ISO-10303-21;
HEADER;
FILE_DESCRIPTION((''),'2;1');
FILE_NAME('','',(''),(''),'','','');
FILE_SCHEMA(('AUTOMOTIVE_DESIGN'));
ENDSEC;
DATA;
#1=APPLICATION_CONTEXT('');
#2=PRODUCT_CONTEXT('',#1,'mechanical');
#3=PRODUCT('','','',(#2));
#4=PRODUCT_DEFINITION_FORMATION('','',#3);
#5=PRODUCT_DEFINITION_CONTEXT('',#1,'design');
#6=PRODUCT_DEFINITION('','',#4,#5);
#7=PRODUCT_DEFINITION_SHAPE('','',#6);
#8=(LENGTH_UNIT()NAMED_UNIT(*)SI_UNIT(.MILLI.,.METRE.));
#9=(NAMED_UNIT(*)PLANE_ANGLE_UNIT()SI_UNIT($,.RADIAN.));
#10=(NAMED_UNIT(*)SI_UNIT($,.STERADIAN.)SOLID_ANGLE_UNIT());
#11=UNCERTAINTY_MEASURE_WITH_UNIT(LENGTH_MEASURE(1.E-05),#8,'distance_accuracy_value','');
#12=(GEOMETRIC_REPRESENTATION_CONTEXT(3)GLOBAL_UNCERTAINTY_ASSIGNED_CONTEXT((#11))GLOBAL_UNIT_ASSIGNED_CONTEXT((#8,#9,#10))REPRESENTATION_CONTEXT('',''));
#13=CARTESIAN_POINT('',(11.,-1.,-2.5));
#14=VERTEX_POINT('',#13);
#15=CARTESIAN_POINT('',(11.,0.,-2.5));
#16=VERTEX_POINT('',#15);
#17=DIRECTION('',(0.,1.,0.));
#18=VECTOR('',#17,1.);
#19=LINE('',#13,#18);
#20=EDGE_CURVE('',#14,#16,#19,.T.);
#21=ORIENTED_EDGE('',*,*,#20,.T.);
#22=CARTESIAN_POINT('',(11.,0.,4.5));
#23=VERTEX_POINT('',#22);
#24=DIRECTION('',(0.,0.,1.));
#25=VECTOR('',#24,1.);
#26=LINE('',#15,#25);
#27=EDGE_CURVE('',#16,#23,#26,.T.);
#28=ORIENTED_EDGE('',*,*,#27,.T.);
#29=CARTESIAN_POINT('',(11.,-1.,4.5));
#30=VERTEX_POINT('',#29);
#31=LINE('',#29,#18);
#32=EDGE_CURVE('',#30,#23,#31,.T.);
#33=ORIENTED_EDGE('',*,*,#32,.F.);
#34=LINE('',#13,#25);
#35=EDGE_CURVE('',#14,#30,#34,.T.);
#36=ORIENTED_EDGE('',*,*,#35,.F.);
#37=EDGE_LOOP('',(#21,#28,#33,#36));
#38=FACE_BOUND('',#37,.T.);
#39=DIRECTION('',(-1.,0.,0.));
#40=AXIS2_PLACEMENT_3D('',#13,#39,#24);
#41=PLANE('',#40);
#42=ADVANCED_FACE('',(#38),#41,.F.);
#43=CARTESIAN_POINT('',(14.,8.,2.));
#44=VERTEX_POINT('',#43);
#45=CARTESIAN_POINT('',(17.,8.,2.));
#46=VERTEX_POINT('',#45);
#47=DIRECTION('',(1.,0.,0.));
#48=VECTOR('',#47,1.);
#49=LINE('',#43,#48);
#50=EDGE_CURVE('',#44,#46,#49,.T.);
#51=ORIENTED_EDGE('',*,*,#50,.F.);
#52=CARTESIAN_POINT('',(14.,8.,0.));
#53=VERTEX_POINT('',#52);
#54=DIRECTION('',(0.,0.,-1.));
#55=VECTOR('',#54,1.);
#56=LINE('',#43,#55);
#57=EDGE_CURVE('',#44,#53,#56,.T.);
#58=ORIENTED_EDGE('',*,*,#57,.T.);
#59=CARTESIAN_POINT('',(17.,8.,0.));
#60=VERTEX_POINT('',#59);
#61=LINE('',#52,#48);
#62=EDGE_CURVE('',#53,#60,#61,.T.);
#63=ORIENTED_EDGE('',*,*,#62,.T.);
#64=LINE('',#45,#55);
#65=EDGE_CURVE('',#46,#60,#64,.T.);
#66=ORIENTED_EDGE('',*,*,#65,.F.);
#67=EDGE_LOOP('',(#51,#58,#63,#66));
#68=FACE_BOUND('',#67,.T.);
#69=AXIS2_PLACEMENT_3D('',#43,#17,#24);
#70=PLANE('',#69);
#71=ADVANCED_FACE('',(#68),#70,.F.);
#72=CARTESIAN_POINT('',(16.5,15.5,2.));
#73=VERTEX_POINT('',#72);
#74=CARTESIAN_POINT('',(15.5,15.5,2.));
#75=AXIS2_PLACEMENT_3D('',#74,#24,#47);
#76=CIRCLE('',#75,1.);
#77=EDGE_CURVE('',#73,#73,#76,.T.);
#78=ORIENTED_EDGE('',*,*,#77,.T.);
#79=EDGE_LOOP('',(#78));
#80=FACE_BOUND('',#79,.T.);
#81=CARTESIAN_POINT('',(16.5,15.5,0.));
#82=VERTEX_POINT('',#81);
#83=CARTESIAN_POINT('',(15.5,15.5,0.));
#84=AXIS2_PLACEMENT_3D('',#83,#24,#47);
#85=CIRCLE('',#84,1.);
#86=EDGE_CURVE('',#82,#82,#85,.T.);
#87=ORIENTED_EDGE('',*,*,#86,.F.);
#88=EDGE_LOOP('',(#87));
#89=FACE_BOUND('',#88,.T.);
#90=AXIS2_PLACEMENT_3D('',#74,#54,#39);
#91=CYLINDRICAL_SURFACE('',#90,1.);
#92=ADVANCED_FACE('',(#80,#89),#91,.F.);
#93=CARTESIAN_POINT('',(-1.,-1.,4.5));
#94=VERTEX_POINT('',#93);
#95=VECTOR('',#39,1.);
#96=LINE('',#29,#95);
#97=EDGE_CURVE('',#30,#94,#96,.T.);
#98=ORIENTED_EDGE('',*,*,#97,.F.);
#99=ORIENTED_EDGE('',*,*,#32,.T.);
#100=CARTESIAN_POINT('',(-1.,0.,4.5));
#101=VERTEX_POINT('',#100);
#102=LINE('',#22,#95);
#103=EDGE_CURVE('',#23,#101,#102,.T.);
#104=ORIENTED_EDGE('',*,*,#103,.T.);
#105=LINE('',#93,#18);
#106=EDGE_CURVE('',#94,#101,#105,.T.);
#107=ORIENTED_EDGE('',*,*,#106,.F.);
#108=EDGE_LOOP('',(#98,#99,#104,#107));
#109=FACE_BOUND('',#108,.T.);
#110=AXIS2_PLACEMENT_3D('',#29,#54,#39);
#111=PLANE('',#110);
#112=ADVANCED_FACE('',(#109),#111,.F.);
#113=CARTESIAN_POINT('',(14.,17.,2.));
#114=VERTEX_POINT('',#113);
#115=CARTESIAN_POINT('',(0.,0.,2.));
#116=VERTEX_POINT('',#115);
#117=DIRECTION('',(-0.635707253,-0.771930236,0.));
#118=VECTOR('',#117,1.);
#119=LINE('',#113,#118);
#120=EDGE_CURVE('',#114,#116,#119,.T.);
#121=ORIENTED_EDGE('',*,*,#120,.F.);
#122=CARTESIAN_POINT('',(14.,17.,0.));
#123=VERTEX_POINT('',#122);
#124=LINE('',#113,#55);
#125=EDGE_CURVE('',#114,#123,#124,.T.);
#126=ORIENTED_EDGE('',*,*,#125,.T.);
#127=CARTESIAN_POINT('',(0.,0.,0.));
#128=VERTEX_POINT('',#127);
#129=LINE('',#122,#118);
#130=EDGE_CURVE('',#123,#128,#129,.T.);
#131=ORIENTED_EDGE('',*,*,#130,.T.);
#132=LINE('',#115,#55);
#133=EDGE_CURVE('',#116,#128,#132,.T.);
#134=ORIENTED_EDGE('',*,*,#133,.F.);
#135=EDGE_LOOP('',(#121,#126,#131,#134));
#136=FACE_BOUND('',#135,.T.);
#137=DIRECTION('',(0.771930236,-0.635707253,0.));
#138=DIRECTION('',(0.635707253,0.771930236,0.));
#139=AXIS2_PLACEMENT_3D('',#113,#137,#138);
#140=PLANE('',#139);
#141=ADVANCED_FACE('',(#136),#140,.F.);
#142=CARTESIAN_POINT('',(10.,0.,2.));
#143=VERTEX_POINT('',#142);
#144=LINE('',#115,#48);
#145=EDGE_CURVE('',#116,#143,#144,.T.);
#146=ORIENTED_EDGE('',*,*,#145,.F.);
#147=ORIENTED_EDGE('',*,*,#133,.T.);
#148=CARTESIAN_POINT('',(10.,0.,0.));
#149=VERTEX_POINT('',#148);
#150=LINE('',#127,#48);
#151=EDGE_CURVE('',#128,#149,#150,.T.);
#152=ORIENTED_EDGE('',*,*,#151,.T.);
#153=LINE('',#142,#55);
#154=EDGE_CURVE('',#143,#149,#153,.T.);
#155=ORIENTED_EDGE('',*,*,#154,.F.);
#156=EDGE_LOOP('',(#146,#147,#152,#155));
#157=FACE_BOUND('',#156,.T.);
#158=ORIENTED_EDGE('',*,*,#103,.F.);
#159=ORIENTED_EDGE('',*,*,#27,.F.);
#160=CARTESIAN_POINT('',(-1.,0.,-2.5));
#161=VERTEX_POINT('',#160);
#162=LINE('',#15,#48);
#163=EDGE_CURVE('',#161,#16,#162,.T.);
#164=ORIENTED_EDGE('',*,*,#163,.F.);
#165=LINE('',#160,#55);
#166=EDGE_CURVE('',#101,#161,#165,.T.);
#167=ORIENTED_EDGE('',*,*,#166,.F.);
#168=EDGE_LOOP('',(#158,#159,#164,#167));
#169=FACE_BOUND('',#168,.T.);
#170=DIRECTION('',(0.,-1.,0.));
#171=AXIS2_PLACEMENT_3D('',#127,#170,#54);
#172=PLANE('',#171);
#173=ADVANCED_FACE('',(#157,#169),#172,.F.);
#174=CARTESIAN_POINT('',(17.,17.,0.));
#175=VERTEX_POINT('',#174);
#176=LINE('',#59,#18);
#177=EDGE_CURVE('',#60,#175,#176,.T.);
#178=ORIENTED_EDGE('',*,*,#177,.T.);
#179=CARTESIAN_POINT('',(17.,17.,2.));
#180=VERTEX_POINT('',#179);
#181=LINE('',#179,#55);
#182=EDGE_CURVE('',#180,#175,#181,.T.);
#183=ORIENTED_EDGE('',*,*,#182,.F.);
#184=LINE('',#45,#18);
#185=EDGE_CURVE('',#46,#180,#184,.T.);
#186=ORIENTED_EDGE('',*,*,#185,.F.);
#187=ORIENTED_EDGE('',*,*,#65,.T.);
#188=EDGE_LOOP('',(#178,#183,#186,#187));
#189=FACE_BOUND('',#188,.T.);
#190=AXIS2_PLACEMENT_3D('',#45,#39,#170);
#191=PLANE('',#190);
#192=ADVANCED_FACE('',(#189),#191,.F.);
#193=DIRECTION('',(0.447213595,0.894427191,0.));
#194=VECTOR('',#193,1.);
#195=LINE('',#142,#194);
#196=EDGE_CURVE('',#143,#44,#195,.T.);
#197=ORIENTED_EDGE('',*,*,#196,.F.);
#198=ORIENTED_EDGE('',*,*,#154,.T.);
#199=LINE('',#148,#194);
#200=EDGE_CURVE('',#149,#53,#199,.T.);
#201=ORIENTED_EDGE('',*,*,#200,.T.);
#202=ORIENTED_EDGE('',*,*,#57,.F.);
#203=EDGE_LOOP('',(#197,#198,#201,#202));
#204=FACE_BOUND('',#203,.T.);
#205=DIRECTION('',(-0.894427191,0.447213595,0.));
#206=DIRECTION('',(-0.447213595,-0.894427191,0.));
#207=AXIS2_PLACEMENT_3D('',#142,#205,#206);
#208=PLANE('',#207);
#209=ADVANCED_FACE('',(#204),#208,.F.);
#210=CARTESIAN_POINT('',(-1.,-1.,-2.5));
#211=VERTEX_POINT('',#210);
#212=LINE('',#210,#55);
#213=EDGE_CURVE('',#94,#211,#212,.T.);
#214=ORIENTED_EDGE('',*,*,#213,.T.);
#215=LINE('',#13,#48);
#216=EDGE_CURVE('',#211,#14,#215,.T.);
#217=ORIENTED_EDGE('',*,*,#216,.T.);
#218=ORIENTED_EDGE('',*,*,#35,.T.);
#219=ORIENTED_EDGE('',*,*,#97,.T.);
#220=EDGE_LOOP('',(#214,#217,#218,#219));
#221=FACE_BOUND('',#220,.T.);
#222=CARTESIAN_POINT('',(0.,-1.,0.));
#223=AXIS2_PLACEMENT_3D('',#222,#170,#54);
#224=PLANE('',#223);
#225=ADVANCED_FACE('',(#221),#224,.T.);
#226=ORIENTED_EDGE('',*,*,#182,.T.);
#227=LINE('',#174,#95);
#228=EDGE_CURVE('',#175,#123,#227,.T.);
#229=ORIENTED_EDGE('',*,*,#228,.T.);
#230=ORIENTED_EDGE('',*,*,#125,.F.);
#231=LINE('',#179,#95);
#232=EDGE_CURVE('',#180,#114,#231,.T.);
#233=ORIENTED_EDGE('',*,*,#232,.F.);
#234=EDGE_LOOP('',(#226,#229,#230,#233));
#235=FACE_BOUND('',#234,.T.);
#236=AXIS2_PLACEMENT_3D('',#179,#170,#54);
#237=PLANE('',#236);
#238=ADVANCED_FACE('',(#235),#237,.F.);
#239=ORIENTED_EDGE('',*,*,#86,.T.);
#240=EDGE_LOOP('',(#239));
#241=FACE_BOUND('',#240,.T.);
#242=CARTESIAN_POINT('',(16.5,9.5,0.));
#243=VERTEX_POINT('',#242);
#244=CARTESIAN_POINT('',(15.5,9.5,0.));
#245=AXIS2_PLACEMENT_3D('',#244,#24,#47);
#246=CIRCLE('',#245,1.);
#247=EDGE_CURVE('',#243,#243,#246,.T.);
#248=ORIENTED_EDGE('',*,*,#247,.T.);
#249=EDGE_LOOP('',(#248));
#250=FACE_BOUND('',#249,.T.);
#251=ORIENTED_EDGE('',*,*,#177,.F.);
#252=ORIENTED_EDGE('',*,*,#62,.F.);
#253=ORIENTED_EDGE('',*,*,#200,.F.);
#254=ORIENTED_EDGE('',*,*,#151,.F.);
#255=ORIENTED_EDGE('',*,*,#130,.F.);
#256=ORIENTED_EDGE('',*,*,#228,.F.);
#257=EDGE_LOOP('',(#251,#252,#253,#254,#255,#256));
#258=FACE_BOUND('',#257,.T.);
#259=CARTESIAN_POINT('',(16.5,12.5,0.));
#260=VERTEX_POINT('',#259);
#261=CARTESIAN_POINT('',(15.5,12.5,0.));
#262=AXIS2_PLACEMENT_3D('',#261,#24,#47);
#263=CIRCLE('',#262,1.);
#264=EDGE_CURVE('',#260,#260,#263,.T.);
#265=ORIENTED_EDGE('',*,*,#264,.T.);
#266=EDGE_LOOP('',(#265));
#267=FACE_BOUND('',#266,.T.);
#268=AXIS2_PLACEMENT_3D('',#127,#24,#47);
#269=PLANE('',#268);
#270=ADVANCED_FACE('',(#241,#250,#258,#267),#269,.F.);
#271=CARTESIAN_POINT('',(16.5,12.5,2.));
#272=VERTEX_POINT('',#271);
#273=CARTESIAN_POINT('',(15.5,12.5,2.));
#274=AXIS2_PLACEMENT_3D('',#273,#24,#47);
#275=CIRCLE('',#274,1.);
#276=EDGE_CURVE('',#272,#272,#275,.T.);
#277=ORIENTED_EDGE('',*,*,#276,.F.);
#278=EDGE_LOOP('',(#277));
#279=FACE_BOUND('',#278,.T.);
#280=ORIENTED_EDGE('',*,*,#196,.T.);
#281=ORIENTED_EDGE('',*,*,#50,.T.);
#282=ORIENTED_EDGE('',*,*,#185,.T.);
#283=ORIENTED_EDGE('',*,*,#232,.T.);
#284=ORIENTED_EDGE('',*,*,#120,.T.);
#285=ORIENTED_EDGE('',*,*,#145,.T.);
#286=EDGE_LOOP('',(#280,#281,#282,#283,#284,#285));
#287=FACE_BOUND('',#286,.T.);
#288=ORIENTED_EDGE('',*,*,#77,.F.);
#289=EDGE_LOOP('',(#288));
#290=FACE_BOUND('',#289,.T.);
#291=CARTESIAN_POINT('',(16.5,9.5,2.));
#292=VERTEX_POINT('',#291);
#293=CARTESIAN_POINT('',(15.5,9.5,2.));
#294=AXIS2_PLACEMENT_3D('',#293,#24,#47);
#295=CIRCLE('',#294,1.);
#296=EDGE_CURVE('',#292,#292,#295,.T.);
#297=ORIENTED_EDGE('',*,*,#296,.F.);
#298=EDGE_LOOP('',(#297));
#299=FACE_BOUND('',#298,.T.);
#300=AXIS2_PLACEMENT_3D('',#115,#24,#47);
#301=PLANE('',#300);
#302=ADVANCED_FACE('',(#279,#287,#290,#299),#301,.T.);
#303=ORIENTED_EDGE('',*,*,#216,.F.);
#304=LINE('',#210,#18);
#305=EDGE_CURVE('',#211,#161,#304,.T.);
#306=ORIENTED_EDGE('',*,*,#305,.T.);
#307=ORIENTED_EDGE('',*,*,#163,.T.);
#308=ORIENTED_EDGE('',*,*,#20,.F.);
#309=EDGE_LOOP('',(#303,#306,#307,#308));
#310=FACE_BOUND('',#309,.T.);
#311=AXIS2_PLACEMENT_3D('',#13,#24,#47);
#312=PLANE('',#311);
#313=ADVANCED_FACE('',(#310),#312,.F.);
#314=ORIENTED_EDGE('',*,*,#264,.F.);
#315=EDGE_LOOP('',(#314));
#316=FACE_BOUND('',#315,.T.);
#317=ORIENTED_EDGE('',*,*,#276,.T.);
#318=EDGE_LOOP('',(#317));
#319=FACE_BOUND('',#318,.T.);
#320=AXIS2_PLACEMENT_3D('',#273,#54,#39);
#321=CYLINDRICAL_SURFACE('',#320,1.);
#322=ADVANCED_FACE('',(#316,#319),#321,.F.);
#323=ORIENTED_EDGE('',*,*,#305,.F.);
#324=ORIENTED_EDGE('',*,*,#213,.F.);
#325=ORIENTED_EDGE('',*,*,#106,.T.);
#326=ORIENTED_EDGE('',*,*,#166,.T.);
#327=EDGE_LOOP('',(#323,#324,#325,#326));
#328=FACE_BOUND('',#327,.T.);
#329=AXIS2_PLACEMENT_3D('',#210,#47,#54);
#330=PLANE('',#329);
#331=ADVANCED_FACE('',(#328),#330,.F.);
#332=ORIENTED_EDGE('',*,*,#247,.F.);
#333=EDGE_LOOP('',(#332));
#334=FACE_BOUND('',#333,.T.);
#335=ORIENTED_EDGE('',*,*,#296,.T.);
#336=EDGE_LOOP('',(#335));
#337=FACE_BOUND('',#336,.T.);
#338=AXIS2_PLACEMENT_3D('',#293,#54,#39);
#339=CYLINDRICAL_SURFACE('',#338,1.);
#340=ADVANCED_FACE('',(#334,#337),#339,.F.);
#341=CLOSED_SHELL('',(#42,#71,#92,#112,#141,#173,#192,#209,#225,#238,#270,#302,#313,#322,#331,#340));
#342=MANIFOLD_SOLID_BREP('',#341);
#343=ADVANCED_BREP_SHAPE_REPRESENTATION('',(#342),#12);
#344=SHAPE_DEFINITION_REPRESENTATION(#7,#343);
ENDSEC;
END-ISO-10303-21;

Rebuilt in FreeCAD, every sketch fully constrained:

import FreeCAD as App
import Part
import Sketcher
Q = App.Units.Quantity


def add_polygon(sketch, points):
    """Adds a closed chain of lines whose ends are joined by coincident constraints."""
    first, n = sketch.GeometryCount, len(points)
    for a, b in zip(points, points[1:] + points[:1]):
        sketch.addGeometry(Part.LineSegment(App.Vector(*a, 0), App.Vector(*b, 0)), False)
    for i in range(n):
        sketch.addConstraint(Sketcher.Constraint("Coincident", first + i, 2, first + (i + 1) % n, 1))

doc = App.newDocument("Part")
params = doc.addObject("Spreadsheet::Sheet", "Params")
for row, (alias, value) in enumerate([
    ("sketch1_diameter", "2 mm"),
    ("sketch1_width", "10 mm"),
    ("sketch1_width2", "3 mm"),
    ("sketch1_height", "9 mm"),
    ("pad1_length", "2 mm"),
    ("sketch2_width", "12 mm"),
    ("sketch2_height", "7 mm"),
    ("pad2_length", "1 mm"),
], start=1):
    params.set(f"A{row}", alias)
    params.set(f"B{row}", "=" + value)
    params.setAlias(f"B{row}", alias)

body = doc.addObject("PartDesign::Body", "Body")

# Sketch on XY plane
sketch1 = body.newObject("Sketcher::SketchObject", "Sketch")
sketch1.AttachmentSupport = (doc.getObject("XY_Plane"), [""])
sketch1.MapMode = "FlatFace"
add_polygon(sketch1, [(0, 0), (10, 0), (14, 8), (17, 8), (17, 17), (14, 17)])  # lines 0-5
sketch1.addGeometry(Part.Circle(App.Vector(15.5, 9.5, 0), App.Vector(0, 0, 1), 1), False)  # 6
sketch1.addGeometry(Part.Circle(App.Vector(15.5, 12.5, 0), App.Vector(0, 0, 1), 1), False)  # 7
sketch1.addGeometry(Part.Circle(App.Vector(15.5, 15.5, 0), App.Vector(0, 0, 1), 1), False)  # 8
sketch1.addConstraint([
    Sketcher.Constraint("Horizontal", 0),
    Sketcher.Constraint("Horizontal", 2),
    Sketcher.Constraint("Vertical", 3),
    Sketcher.Constraint("Horizontal", 4),
    Sketcher.Constraint("Coincident", 5, 2, -1, 1),
    Sketcher.Constraint("Equal", 6, 7),
    Sketcher.Constraint("Equal", 7, 8),
    Sketcher.Constraint("Vertical", 6, 3, 7, 3),
    Sketcher.Constraint("Vertical", 7, 3, 8, 3),
    Sketcher.Constraint("Vertical", 1, 2, 4, 2),
    Sketcher.Constraint("Diameter", 6, Q("2 mm")),
    Sketcher.Constraint("DistanceX", 0, 1, 0, 2, Q("10 mm")),
    Sketcher.Constraint("DistanceX", 2, 1, 2, 2, Q("3 mm")),
    Sketcher.Constraint("DistanceY", 3, 1, 3, 2, Q("9 mm")),
    Sketcher.Constraint("DistanceX", -1, 1, 1, 2, Q("14 mm")),
    Sketcher.Constraint("DistanceY", -1, 1, 1, 2, Q("8 mm")),
    Sketcher.Constraint("DistanceY", 6, 3, 7, 3, Q("3 mm")),
    Sketcher.Constraint("DistanceY", 7, 3, 8, 3, Q("3 mm")),
    Sketcher.Constraint("DistanceX", -1, 1, 6, 3, Q("15.5 mm")),
    Sketcher.Constraint("DistanceY", -1, 1, 6, 3, Q("9.5 mm")),
])
sketch1.setExpression("Constraints[16]", "Params.sketch1_diameter")
sketch1.setExpression("Constraints[17]", "Params.sketch1_width")
sketch1.setExpression("Constraints[18]", "Params.sketch1_width2")
sketch1.setExpression("Constraints[19]", "Params.sketch1_height")
pad1 = body.newObject("PartDesign::Pad", "Pad")
pad1.Profile = sketch1
pad1.setExpression("Length", "Params.pad1_length")

# Sketch on XZ plane
sketch2 = body.newObject("Sketcher::SketchObject", "Sketch001")
sketch2.AttachmentSupport = (doc.getObject("XZ_Plane"), [""])
sketch2.MapMode = "FlatFace"
add_polygon(sketch2, [(-1, 4.5), (-1, -2.5), (11, -2.5), (11, 4.5)])  # lines 0-3
sketch2.addConstraint([
    Sketcher.Constraint("Vertical", 0),
    Sketcher.Constraint("Horizontal", 1),
    Sketcher.Constraint("Vertical", 2),
    Sketcher.Constraint("Horizontal", 3),
    Sketcher.Constraint("DistanceX", 1, 1, 1, 2, Q("12 mm")),
    Sketcher.Constraint("DistanceY", 0, 2, 0, 1, Q("7 mm")),
    Sketcher.Constraint("DistanceX", 0, 2, -1, 1, Q("1 mm")),
    Sketcher.Constraint("DistanceY", 0, 2, -1, 1, Q("2.5 mm")),
])
sketch2.setExpression("Constraints[8]", "Params.sketch2_width")
sketch2.setExpression("Constraints[9]", "Params.sketch2_height")
pad2 = body.newObject("PartDesign::Pad", "Pad001")
pad2.Profile = sketch2
pad2.setExpression("Length", "Params.pad2_length")

doc.recompute()
